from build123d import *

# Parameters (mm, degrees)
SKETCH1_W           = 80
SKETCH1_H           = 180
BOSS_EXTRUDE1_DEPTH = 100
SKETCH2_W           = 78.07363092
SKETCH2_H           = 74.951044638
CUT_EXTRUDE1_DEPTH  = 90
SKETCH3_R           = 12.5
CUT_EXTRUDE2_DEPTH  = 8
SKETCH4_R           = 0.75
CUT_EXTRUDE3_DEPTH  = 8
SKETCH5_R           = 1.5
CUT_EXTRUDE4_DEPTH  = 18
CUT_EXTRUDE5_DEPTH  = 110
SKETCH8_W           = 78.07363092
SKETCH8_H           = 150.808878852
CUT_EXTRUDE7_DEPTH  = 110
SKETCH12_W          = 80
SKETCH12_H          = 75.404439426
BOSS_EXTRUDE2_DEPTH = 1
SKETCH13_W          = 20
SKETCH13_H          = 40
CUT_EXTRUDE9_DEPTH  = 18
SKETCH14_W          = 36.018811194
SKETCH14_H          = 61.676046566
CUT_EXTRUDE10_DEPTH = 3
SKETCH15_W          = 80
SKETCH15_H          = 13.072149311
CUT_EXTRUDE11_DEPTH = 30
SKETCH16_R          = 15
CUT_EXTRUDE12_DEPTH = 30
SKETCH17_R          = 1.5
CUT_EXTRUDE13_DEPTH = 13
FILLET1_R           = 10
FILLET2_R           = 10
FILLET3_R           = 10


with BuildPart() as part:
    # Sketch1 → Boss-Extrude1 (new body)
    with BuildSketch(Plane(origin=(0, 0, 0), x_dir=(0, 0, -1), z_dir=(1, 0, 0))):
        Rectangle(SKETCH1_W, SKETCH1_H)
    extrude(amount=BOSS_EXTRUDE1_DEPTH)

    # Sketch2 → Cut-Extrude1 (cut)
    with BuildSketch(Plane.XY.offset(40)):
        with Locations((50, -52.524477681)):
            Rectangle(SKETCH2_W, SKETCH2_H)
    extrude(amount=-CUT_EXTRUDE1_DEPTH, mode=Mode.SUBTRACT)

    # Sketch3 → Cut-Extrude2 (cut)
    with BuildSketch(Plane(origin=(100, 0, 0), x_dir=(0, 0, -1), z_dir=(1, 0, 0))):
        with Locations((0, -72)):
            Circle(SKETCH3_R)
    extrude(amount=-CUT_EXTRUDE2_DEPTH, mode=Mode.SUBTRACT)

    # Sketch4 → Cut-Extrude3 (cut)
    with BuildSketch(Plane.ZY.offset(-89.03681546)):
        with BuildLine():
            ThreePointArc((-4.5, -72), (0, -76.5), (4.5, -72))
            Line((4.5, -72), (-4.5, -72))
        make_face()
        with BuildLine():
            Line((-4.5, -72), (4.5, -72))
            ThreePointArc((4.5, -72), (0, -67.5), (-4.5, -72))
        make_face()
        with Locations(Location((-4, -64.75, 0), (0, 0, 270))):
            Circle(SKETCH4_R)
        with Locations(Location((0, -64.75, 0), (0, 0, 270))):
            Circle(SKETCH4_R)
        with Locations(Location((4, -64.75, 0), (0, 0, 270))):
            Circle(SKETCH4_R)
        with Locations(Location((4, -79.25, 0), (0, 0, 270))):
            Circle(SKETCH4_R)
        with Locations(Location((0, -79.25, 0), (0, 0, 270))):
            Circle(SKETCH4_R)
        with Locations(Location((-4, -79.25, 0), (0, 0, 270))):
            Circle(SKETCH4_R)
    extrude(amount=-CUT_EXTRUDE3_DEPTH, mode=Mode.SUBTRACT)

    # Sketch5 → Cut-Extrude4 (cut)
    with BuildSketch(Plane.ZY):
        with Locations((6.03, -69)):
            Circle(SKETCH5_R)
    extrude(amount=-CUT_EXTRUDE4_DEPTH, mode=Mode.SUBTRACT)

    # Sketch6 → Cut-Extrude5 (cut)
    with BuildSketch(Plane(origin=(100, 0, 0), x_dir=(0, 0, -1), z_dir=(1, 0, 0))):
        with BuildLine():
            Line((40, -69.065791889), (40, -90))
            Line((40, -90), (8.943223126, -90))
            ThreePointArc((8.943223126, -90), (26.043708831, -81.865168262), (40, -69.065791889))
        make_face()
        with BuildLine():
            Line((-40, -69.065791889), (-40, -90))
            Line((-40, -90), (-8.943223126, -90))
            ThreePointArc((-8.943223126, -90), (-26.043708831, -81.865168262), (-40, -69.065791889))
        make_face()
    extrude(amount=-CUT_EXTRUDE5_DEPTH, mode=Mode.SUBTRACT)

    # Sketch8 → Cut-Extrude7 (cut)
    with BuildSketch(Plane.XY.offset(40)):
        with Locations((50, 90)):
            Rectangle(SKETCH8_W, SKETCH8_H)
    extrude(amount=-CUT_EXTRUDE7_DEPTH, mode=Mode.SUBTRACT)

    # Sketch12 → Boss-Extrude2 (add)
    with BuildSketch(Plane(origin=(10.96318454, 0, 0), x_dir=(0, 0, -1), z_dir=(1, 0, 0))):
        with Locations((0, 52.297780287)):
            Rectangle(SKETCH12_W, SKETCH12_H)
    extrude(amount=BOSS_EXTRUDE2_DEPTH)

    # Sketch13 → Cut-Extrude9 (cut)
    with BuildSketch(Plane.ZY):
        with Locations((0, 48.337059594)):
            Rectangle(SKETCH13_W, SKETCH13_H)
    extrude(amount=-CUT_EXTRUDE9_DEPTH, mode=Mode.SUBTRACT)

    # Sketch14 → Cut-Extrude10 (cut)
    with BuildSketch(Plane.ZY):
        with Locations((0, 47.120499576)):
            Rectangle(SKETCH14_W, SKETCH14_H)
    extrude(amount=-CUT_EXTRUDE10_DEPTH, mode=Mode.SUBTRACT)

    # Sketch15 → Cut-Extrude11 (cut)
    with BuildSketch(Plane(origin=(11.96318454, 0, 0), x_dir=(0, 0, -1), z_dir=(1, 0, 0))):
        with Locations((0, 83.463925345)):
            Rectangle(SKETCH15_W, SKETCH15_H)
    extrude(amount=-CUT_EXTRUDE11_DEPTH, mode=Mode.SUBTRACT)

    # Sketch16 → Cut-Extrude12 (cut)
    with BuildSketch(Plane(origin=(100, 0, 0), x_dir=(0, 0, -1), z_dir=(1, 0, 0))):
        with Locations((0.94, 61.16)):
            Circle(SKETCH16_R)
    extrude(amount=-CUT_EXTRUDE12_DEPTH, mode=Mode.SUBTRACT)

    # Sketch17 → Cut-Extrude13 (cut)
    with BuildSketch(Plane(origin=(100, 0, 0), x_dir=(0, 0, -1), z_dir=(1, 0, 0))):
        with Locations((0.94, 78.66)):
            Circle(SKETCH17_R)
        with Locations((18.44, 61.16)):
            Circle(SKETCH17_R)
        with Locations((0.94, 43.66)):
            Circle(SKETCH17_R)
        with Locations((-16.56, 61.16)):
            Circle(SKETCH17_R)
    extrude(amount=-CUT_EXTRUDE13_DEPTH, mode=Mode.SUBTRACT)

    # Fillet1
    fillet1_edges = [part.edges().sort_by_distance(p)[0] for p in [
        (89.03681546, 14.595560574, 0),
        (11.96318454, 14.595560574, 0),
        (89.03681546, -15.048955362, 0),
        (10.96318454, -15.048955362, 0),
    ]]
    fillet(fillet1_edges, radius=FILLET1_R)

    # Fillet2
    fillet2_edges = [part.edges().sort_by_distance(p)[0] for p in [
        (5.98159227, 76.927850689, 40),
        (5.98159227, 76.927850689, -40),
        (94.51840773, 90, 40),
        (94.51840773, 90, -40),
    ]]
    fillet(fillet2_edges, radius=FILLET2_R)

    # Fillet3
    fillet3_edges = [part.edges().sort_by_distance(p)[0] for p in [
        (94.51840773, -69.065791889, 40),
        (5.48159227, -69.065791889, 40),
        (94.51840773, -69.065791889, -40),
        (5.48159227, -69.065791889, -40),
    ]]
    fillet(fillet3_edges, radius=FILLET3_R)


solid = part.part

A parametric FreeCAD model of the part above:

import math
import FreeCAD as App
import Part
import Sketcher

V = App.Vector


def edges_at(feature, points):
    """Names of the edges that pass closest to the given points."""
    edges = feature.Shape.Edges
    near = lambda p: min(range(len(edges)), key=lambda i: edges[i].distToShape(Part.Vertex(*p))[0])
    return sorted({f"Edge{near(p) + 1}" for p in points})


def add_polygon(sketch, points):
    """Adds a closed chain of lines whose ends are joined by coincident constraints."""
    first, n = sketch.GeometryCount, len(points)
    for a, b in zip(points, points[1:] + points[:1]):
        sketch.addGeometry(Part.LineSegment(App.Vector(*a, 0), App.Vector(*b, 0)), False)
    for i in range(n):
        sketch.addConstraint(Sketcher.Constraint("Coincident", first + i, 2, first + (i + 1) % n, 1))

doc = App.newDocument("Part")
body = doc.addObject("PartDesign::Body", "Body")

# Sketch on YZ plane
sketch1 = doc.addObject("Sketcher::SketchObject", "Sketch")
body.addObject(sketch1)
sketch1.AttachmentSupport = (doc.YZ_Plane, [""])
sketch1.MapMode = "FlatFace"
add_polygon(sketch1, [(90, 40), (-90, 40), (-90, -40), (90, -40)])  # lines 0-3
sketch1.addConstraint(Sketcher.Constraint("Horizontal", 0))
sketch1.addConstraint(Sketcher.Constraint("Vertical", 1))
sketch1.addConstraint(Sketcher.Constraint("Horizontal", 2))
sketch1.addConstraint(Sketcher.Constraint("Vertical", 3))
sketch1.addConstraint(Sketcher.Constraint("Symmetric", 0, 2, 2, 2, -1, 1))
sketch1.addConstraint(Sketcher.Constraint("DistanceX", 0, 2, 0, 1, 180.0))
sketch1.addConstraint(Sketcher.Constraint("DistanceY", 1, 2, 1, 1, 80.0))
pad1 = doc.addObject("PartDesign::Pad", "Pad")
body.addObject(pad1)
pad1.Profile = sketch1
pad1.Length = 100

# Sketch on XY plane
sketch2 = doc.addObject("Sketcher::SketchObject", "Sketch001")
body.addObject(sketch2)
sketch2.AttachmentSupport = (doc.XY_Plane, [""])
sketch2.MapMode = "FlatFace"
sketch2.AttachmentOffset = App.Placement(V(0, 0, 40), App.Rotation())
add_polygon(sketch2, [(10.963185, -15.048955), (10.963185, -90), (89.036815, -90), (89.036815, -15.048955)])  # lines 0-3
sketch2.addConstraint(Sketcher.Constraint("Vertical", 0))
sketch2.addConstraint(Sketcher.Constraint("Horizontal", 1))
sketch2.addConstraint(Sketcher.Constraint("Vertical", 2))
sketch2.addConstraint(Sketcher.Constraint("Horizontal", 3))
sketch2.addConstraint(Sketcher.Constraint("DistanceY", 0, 2, -1, 1, 90.0))
sketch2.addConstraint(Sketcher.Constraint("DistanceX", 1, 1, 1, 2, 78.073631))
sketch2.addConstraint(Sketcher.Constraint("DistanceY", 0, 2, 0, 1, 74.951045))
sketch2.addConstraint(Sketcher.Constraint("DistanceX", -1, 1, 0, 2, 10.963185))
pocket1 = doc.addObject("PartDesign::Pocket", "Pocket")
body.addObject(pocket1)
pocket1.Profile = sketch2
pocket1.Length = 90

# Sketch on YZ plane
sketch3 = doc.addObject("Sketcher::SketchObject", "Sketch002")
body.addObject(sketch3)
sketch3.AttachmentSupport = (doc.YZ_Plane, [""])
sketch3.MapMode = "FlatFace"
sketch3.AttachmentOffset = App.Placement(V(0, 0, 100), App.Rotation())
sketch3.addGeometry(Part.Circle(V(-72, 0, 0), V(0, 0, 1), 12.5), False)
sketch3.addConstraint(Sketcher.Constraint("PointOnObject", 0, 3, -1))
sketch3.addConstraint(Sketcher.Constraint("Diameter", 0, 25.0))
sketch3.addConstraint(Sketcher.Constraint("DistanceX", 0, 3, -1, 1, 72.0))
pocket2 = doc.addObject("PartDesign::Pocket", "Pocket001")
body.addObject(pocket2)
pocket2.Profile = sketch3
pocket2.Length = 8

# Sketch on YZ plane
sketch4 = doc.addObject("Sketcher::SketchObject", "Sketch003")
body.addObject(sketch4)
sketch4.AttachmentSupport = (doc.YZ_Plane, [""])
sketch4.MapMode = "FlatFace"
sketch4.AttachmentOffset = App.Placement(V(0, 0, 89.036815), App.Rotation())
sketch4.addGeometry(Part.Circle(V(-72, 0, 0), V(0, 0, 1), 4.5), False)
sketch4.addGeometry(Part.Circle(V(-64.75, -4, 0), V(0, 0, 1), 0.75), False)
sketch4.addGeometry(Part.Circle(V(-64.75, 0, 0), V(0, 0, 1), 0.75), False)
sketch4.addGeometry(Part.Circle(V(-64.75, 4, 0), V(0, 0, 1), 0.75), False)
sketch4.addGeometry(Part.Circle(V(-79.25, 4, 0), V(0, 0, 1), 0.75), False)
sketch4.addGeometry(Part.Circle(V(-79.25, 0, 0), V(0, 0, 1), 0.75), False)
sketch4.addGeometry(Part.Circle(V(-79.25, -4, 0), V(0, 0, 1), 0.75), False)
sketch4.addConstraint(Sketcher.Constraint("Equal", 1, 2))
sketch4.addConstraint(Sketcher.Constraint("Equal", 2, 3))
sketch4.addConstraint(Sketcher.Constraint("Equal", 3, 4))
sketch4.addConstraint(Sketcher.Constraint("Equal", 4, 5))
sketch4.addConstraint(Sketcher.Constraint("Equal", 5, 6))
sketch4.addConstraint(Sketcher.Constraint("Symmetric", 1, 3, 3, 3, -1))
sketch4.addConstraint(Sketcher.Constraint("Symmetric", 4, 3, 6, 3, -1))
sketch4.addConstraint(Sketcher.Constraint("PointOnObject", 0, 3, -1))
sketch4.addConstraint(Sketcher.Constraint("PointOnObject", 2, 3, -1))
sketch4.addConstraint(Sketcher.Constraint("PointOnObject", 5, 3, -1))
sketch4.addConstraint(Sketcher.Constraint("Horizontal", 3, 3, 4, 3))
sketch4.addConstraint(Sketcher.Constraint("Vertical", 1, 3, 2, 3))
sketch4.addConstraint(Sketcher.Constraint("Vertical", 4, 3, 5, 3))
sketch4.addConstraint(Sketcher.Constraint("Diameter", 0, 9.0))
sketch4.addConstraint(Sketcher.Constraint("Diameter", 1, 1.5))
sketch4.addConstraint(Sketcher.Constraint("DistanceX", 0, 3, -1, 1, 72.0))
sketch4.addConstraint(Sketcher.Constraint("DistanceY", 1, 3, -1, 1, 4.0))
sketch4.addConstraint(Sketcher.Constraint("DistanceX", 4, 3, 3, 3, 14.5))
sketch4.addConstraint(Sketcher.Constraint("DistanceX", 1, 3, -1, 1, 64.75))
pocket3 = doc.addObject("PartDesign::Pocket", "Pocket002")
body.addObject(pocket3)
pocket3.Profile = sketch4
pocket3.Length = 8
pocket3.Reversed = True

# Sketch on YZ plane
sketch5 = doc.addObject("Sketcher::SketchObject", "Sketch004")
body.addObject(sketch5)
sketch5.AttachmentSupport = (doc.YZ_Plane, [""])
sketch5.MapMode = "FlatFace"
sketch5.addGeometry(Part.Circle(V(-69, 6.03, 0), V(0, 0, 1), 1.5), False)
sketch5.addConstraint(Sketcher.Constraint("Diameter", 0, 3.0))
sketch5.addConstraint(Sketcher.Constraint("DistanceX", 0, 3, -1, 1, 69.0))
sketch5.addConstraint(Sketcher.Constraint("DistanceY", -1, 1, 0, 3, 6.03))
pocket4 = doc.addObject("PartDesign::Pocket", "Pocket003")
body.addObject(pocket4)
pocket4.Profile = sketch5
pocket4.Length = 18
pocket4.Reversed = True

# Sketch on YZ plane
sketch6 = doc.addObject("Sketcher::SketchObject", "Sketch005")
body.addObject(sketch6)
sketch6.AttachmentSupport = (doc.YZ_Plane, [""])
sketch6.MapMode = "FlatFace"
sketch6.AttachmentOffset = App.Placement(V(0, 0, 100), App.Rotation())
sketch6.addGeometry(Part.LineSegment(V(-90, -40, 0), V(-69.065792, -40, 0)), False)
sketch6.addGeometry(Part.ArcOfCircle(Part.Circle(V(-29.00463, 9.587597, 0), V(0, 0, 1), 63.748149), math.radians(-163.100852), math.radians(-128.934285)), False)
sketch6.addGeometry(Part.LineSegment(V(-90, -8.943223, 0), V(-90, -40, 0)), False)
sketch6.addGeometry(Part.LineSegment(V(-69.065792, 40, 0), V(-90, 40, 0)), False)
sketch6.addGeometry(Part.LineSegment(V(-90, 40, 0), V(-90, 8.943223, 0)), False)
sketch6.addGeometry(Part.ArcOfCircle(Part.Circle(V(-29.00463, -9.587597, 0), V(0, 0, 1), 63.748149), math.radians(128.934285), math.radians(163.100852)), False)
sketch6.addConstraint(Sketcher.Constraint("Coincident", 0, 2, 1, 2))
sketch6.addConstraint(Sketcher.Constraint("Coincident", 1, 1, 2, 1))
sketch6.addConstraint(Sketcher.Constraint("Coincident", 2, 2, 0, 1))
sketch6.addConstraint(Sketcher.Constraint("Coincident", 3, 2, 4, 1))
sketch6.addConstraint(Sketcher.Constraint("Coincident", 4, 2, 5, 2))
sketch6.addConstraint(Sketcher.Constraint("Coincident", 5, 1, 3, 1))
sketch6.addConstraint(Sketcher.Constraint("Horizontal", 0))
sketch6.addConstraint(Sketcher.Constraint("Vertical", 2))
sketch6.addConstraint(Sketcher.Constraint("Horizontal", 3))
sketch6.addConstraint(Sketcher.Constraint("Vertical", 4))
sketch6.addConstraint(Sketcher.Constraint("Equal", 1, 5))
sketch6.addConstraint(Sketcher.Constraint("Symmetric", 1, 3, 5, 3, -1))
sketch6.addConstraint(Sketcher.Constraint("Symmetric", 2, 2, 3, 2, -1))
sketch6.addConstraint(Sketcher.Constraint("DistanceY", 0, 2, -1, 1, 40.0))
sketch6.addConstraint(Sketcher.Constraint("DistanceX", 1, 1, -1, 1, 90.0))
sketch6.addConstraint(Sketcher.Constraint("Radius", 1, 63.748149))
sketch6.addConstraint(Sketcher.Constraint("DistanceX", 0, 1, 0, 2, 20.934208))
sketch6.addConstraint(Sketcher.Constraint("DistanceY", 2, 2, 2, 1, 31.056777))
pocket5 = doc.addObject("PartDesign::Pocket", "Pocket004")
body.addObject(pocket5)
pocket5.Profile = sketch6
pocket5.Length = 110

# Sketch on XY plane
sketch7 = doc.addObject("Sketcher::SketchObject", "Sketch006")
body.addObject(sketch7)
sketch7.AttachmentSupport = (doc.XY_Plane, [""])
sketch7.MapMode = "FlatFace"
sketch7.AttachmentOffset = App.Placement(V(0, 0, 40), App.Rotation())
add_polygon(sketch7, [(10.963185, 165.404439), (10.963185, 14.595561), (89.036815, 14.595561), (89.036815, 165.404439)])  # lines 0-3
sketch7.addConstraint(Sketcher.Constraint("Vertical", 0))
sketch7.addConstraint(Sketcher.Constraint("Horizontal", 1))
sketch7.addConstraint(Sketcher.Constraint("Vertical", 2))
sketch7.addConstraint(Sketcher.Constraint("Horizontal", 3))
sketch7.addConstraint(Sketcher.Constraint("DistanceX", 1, 1, 1, 2, 78.073631))
sketch7.addConstraint(Sketcher.Constraint("DistanceY", 0, 2, 0, 1, 150.808879))
sketch7.addConstraint(Sketcher.Constraint("DistanceY", -1, 1, 0, 2, 14.595561))
sketch7.addConstraint(Sketcher.Constraint("DistanceX", -1, 1, 0, 2, 10.963185))
pocket6 = doc.addObject("PartDesign::Pocket", "Pocket005")
body.addObject(pocket6)
pocket6.Profile = sketch7
pocket6.Length = 110

# Sketch on YZ plane
sketch8 = doc.addObject("Sketcher::SketchObject", "Sketch007")
body.addObject(sketch8)
sketch8.AttachmentSupport = (doc.YZ_Plane, [""])
sketch8.MapMode = "FlatFace"
sketch8.AttachmentOffset = App.Placement(V(0, 0, 10.963185), App.Rotation())
add_polygon(sketch8, [(90, 40), (14.595561, 40), (14.595561, -40), (90, -40)])  # lines 0-3
sketch8.addConstraint(Sketcher.Constraint("Horizontal", 0))
sketch8.addConstraint(Sketcher.Constraint("Vertical", 1))
sketch8.addConstraint(Sketcher.Constraint("Horizontal", 2))
sketch8.addConstraint(Sketcher.Constraint("Vertical", 3))
sketch8.addConstraint(Sketcher.Constraint("DistanceY", 1, 2, 1, 1, 80.0))
sketch8.addConstraint(Sketcher.Constraint("DistanceY", -1, 1, 0, 2, 40.0))
sketch8.addConstraint(Sketcher.Constraint("DistanceX", -1, 1, 2, 2, 90.0))
sketch8.addConstraint(Sketcher.Constraint("DistanceX", 0, 2, 0, 1, 75.404439))
pad2 = doc.addObject("PartDesign::Pad", "Pad001")
body.addObject(pad2)
pad2.Profile = sketch8
pad2.Length = 1

# Sketch on YZ plane
sketch9 = doc.addObject("Sketcher::SketchObject", "Sketch008")
body.addObject(sketch9)
sketch9.AttachmentSupport = (doc.YZ_Plane, [""])
sketch9.MapMode = "FlatFace"
add_polygon(sketch9, [(68.33706, -10), (28.33706, -10), (28.33706, 10), (68.33706, 10)])  # lines 0-3
sketch9.addConstraint(Sketcher.Constraint("Horizontal", 0))
sketch9.addConstraint(Sketcher.Constraint("Vertical", 1))
sketch9.addConstraint(Sketcher.Constraint("Horizontal", 2))
sketch9.addConstraint(Sketcher.Constraint("Vertical", 3))
sketch9.addConstraint(Sketcher.Constraint("DistanceX", 0, 2, 0, 1, 40.0))
sketch9.addConstraint(Sketcher.Constraint("DistanceY", 1, 1, 1, 2, 20.0))
sketch9.addConstraint(Sketcher.Constraint("DistanceY", 0, 2, -1, 1, 10.0))
sketch9.addConstraint(Sketcher.Constraint("DistanceX", -1, 1, 0, 2, 28.33706))
pocket7 = doc.addObject("PartDesign::Pocket", "Pocket006")
body.addObject(pocket7)
pocket7.Profile = sketch9
pocket7.Length = 18
pocket7.Reversed = True

# Sketch on YZ plane
sketch10 = doc.addObject("Sketcher::SketchObject", "Sketch009")
body.addObject(sketch10)
sketch10.AttachmentSupport = (doc.YZ_Plane, [""])
sketch10.MapMode = "FlatFace"
add_polygon(sketch10, [(77.958523, -18.009406), (16.282476, -18.009406), (16.282476, 18.009406), (77.958523, 18.009406)])  # lines 0-3
sketch10.addConstraint(Sketcher.Constraint("Horizontal", 0))
sketch10.addConstraint(Sketcher.Constraint("Vertical", 1))
sketch10.addConstraint(Sketcher.Constraint("Horizontal", 2))
sketch10.addConstraint(Sketcher.Constraint("Vertical", 3))
sketch10.addConstraint(Sketcher.Constraint("DistanceY", 1, 1, 1, 2, 36.018811))
sketch10.addConstraint(Sketcher.Constraint("DistanceX", 0, 2, 0, 1, 61.676047))
sketch10.addConstraint(Sketcher.Constraint("DistanceX", -1, 1, 0, 2, 16.282476))
sketch10.addConstraint(Sketcher.Constraint("DistanceY", 0, 2, -1, 1, 18.009406))
pocket8 = doc.addObject("PartDesign::Pocket", "Pocket007")
body.addObject(pocket8)
pocket8.Profile = sketch10
pocket8.Length = 3
pocket8.Reversed = True

# Sketch on YZ plane
sketch11 = doc.addObject("Sketcher::SketchObject", "Sketch010")
body.addObject(sketch11)
sketch11.AttachmentSupport = (doc.YZ_Plane, [""])
sketch11.MapMode = "FlatFace"
sketch11.AttachmentOffset = App.Placement(V(0, 0, 11.963185), App.Rotation())
add_polygon(sketch11, [(90, 40), (76.927851, 40), (76.927851, -40), (90, -40)])  # lines 0-3
sketch11.addConstraint(Sketcher.Constraint("Horizontal", 0))
sketch11.addConstraint(Sketcher.Constraint("Vertical", 1))
sketch11.addConstraint(Sketcher.Constraint("Horizontal", 2))
sketch11.addConstraint(Sketcher.Constraint("Vertical", 3))
sketch11.addConstraint(Sketcher.Constraint("DistanceY", 1, 2, 1, 1, 80.0))
sketch11.addConstraint(Sketcher.Constraint("DistanceY", -1, 1, 0, 2, 40.0))
sketch11.addConstraint(Sketcher.Constraint("DistanceX", -1, 1, 2, 2, 90.0))
sketch11.addConstraint(Sketcher.Constraint("DistanceX", 0, 2, 0, 1, 13.072149))
pocket9 = doc.addObject("PartDesign::Pocket", "Pocket008")
body.addObject(pocket9)
pocket9.Profile = sketch11
pocket9.Length = 30

# Sketch on YZ plane
sketch12 = doc.addObject("Sketcher::SketchObject", "Sketch011")
body.addObject(sketch12)
sketch12.AttachmentSupport = (doc.YZ_Plane, [""])
sketch12.MapMode = "FlatFace"
sketch12.AttachmentOffset = App.Placement(V(0, 0, 100), App.Rotation())
sketch12.addGeometry(Part.Circle(V(61.16, -0.94, 0), V(0, 0, 1), 15), False)
sketch12.addConstraint(Sketcher.Constraint("Diameter", 0, 30.0))
sketch12.addConstraint(Sketcher.Constraint("DistanceX", -1, 1, 0, 3, 61.16))
sketch12.addConstraint(Sketcher.Constraint("DistanceY", 0, 3, -1, 1, 0.94))
pocket10 = doc.addObject("PartDesign::Pocket", "Pocket009")
body.addObject(pocket10)
pocket10.Profile = sketch12
pocket10.Length = 30

# Sketch on YZ plane
sketch13 = doc.addObject("Sketcher::SketchObject", "Sketch012")
body.addObject(sketch13)
sketch13.AttachmentSupport = (doc.YZ_Plane, [""])
sketch13.MapMode = "FlatFace"
sketch13.AttachmentOffset = App.Placement(V(0, 0, 100), App.Rotation())
sketch13.addGeometry(Part.Circle(V(78.66, -0.94, 0), V(0, 0, 1), 1.5), False)
sketch13.addGeometry(Part.Circle(V(61.16, -18.44, 0), V(0, 0, 1), 1.5), False)
sketch13.addGeometry(Part.Circle(V(43.66, -0.94, 0), V(0, 0, 1), 1.5), False)
sketch13.addGeometry(Part.Circle(V(61.16, 16.56, 0), V(0, 0, 1), 1.5), False)
sketch13.addConstraint(Sketcher.Constraint("Equal", 0, 1))
sketch13.addConstraint(Sketcher.Constraint("Equal", 1, 2))
sketch13.addConstraint(Sketcher.Constraint("Equal", 2, 3))
sketch13.addConstraint(Sketcher.Constraint("Horizontal", 0, 3, 2, 3))
sketch13.addConstraint(Sketcher.Constraint("Vertical", 1, 3, 3, 3))
sketch13.addConstraint(Sketcher.Constraint("Diameter", 0, 3.0))
sketch13.addConstraint(Sketcher.Constraint("DistanceX", 2, 3, 0, 3, 35.0))
sketch13.addConstraint(Sketcher.Constraint("DistanceY", 1, 3, 3, 3, 35.0))
sketch13.addConstraint(Sketcher.Constraint("DistanceX", 1, 3, 0, 3, 17.5))
sketch13.addConstraint(Sketcher.Constraint("DistanceY", 1, 3, 0, 3, 17.5))
sketch13.addConstraint(Sketcher.Constraint("DistanceX", -1, 1, 0, 3, 78.66))
sketch13.addConstraint(Sketcher.Constraint("DistanceY", 0, 3, -1, 1, 0.94))
pocket11 = doc.addObject("PartDesign::Pocket", "Pocket010")
body.addObject(pocket11)
pocket11.Profile = sketch13
pocket11.Length = 13
doc.recompute()

fillet = doc.addObject("PartDesign::Fillet", "Fillet")
body.addObject(fillet)
fillet.Base = (pocket11, edges_at(pocket11, [
    (89.037, 14.596, 0),
    (11.963, 14.596, 0),
    (89.037, -15.049, 0),
    (10.963, -15.049, 0),
]))
fillet.Radius = 10
doc.recompute()

fillet2 = doc.addObject("PartDesign::Fillet", "Fillet001")
body.addObject(fillet2)
fillet2.Base = (fillet, edges_at(fillet, [
    (5.982, 76.928, 40),
    (5.982, 76.928, -40),
    (94.518, 90, 40),
    (94.518, 90, -40),
]))
fillet2.Radius = 10
doc.recompute()

fillet3 = doc.addObject("PartDesign::Fillet", "Fillet002")
body.addObject(fillet3)
fillet3.Base = (fillet2, edges_at(fillet2, [
    (94.518, -69.066, 40),
    (5.482, -69.066, 40),
    (94.518, -69.066, -40),
    (5.482, -69.066, -40),
]))
fillet3.Radius = 10

doc.recompute()
